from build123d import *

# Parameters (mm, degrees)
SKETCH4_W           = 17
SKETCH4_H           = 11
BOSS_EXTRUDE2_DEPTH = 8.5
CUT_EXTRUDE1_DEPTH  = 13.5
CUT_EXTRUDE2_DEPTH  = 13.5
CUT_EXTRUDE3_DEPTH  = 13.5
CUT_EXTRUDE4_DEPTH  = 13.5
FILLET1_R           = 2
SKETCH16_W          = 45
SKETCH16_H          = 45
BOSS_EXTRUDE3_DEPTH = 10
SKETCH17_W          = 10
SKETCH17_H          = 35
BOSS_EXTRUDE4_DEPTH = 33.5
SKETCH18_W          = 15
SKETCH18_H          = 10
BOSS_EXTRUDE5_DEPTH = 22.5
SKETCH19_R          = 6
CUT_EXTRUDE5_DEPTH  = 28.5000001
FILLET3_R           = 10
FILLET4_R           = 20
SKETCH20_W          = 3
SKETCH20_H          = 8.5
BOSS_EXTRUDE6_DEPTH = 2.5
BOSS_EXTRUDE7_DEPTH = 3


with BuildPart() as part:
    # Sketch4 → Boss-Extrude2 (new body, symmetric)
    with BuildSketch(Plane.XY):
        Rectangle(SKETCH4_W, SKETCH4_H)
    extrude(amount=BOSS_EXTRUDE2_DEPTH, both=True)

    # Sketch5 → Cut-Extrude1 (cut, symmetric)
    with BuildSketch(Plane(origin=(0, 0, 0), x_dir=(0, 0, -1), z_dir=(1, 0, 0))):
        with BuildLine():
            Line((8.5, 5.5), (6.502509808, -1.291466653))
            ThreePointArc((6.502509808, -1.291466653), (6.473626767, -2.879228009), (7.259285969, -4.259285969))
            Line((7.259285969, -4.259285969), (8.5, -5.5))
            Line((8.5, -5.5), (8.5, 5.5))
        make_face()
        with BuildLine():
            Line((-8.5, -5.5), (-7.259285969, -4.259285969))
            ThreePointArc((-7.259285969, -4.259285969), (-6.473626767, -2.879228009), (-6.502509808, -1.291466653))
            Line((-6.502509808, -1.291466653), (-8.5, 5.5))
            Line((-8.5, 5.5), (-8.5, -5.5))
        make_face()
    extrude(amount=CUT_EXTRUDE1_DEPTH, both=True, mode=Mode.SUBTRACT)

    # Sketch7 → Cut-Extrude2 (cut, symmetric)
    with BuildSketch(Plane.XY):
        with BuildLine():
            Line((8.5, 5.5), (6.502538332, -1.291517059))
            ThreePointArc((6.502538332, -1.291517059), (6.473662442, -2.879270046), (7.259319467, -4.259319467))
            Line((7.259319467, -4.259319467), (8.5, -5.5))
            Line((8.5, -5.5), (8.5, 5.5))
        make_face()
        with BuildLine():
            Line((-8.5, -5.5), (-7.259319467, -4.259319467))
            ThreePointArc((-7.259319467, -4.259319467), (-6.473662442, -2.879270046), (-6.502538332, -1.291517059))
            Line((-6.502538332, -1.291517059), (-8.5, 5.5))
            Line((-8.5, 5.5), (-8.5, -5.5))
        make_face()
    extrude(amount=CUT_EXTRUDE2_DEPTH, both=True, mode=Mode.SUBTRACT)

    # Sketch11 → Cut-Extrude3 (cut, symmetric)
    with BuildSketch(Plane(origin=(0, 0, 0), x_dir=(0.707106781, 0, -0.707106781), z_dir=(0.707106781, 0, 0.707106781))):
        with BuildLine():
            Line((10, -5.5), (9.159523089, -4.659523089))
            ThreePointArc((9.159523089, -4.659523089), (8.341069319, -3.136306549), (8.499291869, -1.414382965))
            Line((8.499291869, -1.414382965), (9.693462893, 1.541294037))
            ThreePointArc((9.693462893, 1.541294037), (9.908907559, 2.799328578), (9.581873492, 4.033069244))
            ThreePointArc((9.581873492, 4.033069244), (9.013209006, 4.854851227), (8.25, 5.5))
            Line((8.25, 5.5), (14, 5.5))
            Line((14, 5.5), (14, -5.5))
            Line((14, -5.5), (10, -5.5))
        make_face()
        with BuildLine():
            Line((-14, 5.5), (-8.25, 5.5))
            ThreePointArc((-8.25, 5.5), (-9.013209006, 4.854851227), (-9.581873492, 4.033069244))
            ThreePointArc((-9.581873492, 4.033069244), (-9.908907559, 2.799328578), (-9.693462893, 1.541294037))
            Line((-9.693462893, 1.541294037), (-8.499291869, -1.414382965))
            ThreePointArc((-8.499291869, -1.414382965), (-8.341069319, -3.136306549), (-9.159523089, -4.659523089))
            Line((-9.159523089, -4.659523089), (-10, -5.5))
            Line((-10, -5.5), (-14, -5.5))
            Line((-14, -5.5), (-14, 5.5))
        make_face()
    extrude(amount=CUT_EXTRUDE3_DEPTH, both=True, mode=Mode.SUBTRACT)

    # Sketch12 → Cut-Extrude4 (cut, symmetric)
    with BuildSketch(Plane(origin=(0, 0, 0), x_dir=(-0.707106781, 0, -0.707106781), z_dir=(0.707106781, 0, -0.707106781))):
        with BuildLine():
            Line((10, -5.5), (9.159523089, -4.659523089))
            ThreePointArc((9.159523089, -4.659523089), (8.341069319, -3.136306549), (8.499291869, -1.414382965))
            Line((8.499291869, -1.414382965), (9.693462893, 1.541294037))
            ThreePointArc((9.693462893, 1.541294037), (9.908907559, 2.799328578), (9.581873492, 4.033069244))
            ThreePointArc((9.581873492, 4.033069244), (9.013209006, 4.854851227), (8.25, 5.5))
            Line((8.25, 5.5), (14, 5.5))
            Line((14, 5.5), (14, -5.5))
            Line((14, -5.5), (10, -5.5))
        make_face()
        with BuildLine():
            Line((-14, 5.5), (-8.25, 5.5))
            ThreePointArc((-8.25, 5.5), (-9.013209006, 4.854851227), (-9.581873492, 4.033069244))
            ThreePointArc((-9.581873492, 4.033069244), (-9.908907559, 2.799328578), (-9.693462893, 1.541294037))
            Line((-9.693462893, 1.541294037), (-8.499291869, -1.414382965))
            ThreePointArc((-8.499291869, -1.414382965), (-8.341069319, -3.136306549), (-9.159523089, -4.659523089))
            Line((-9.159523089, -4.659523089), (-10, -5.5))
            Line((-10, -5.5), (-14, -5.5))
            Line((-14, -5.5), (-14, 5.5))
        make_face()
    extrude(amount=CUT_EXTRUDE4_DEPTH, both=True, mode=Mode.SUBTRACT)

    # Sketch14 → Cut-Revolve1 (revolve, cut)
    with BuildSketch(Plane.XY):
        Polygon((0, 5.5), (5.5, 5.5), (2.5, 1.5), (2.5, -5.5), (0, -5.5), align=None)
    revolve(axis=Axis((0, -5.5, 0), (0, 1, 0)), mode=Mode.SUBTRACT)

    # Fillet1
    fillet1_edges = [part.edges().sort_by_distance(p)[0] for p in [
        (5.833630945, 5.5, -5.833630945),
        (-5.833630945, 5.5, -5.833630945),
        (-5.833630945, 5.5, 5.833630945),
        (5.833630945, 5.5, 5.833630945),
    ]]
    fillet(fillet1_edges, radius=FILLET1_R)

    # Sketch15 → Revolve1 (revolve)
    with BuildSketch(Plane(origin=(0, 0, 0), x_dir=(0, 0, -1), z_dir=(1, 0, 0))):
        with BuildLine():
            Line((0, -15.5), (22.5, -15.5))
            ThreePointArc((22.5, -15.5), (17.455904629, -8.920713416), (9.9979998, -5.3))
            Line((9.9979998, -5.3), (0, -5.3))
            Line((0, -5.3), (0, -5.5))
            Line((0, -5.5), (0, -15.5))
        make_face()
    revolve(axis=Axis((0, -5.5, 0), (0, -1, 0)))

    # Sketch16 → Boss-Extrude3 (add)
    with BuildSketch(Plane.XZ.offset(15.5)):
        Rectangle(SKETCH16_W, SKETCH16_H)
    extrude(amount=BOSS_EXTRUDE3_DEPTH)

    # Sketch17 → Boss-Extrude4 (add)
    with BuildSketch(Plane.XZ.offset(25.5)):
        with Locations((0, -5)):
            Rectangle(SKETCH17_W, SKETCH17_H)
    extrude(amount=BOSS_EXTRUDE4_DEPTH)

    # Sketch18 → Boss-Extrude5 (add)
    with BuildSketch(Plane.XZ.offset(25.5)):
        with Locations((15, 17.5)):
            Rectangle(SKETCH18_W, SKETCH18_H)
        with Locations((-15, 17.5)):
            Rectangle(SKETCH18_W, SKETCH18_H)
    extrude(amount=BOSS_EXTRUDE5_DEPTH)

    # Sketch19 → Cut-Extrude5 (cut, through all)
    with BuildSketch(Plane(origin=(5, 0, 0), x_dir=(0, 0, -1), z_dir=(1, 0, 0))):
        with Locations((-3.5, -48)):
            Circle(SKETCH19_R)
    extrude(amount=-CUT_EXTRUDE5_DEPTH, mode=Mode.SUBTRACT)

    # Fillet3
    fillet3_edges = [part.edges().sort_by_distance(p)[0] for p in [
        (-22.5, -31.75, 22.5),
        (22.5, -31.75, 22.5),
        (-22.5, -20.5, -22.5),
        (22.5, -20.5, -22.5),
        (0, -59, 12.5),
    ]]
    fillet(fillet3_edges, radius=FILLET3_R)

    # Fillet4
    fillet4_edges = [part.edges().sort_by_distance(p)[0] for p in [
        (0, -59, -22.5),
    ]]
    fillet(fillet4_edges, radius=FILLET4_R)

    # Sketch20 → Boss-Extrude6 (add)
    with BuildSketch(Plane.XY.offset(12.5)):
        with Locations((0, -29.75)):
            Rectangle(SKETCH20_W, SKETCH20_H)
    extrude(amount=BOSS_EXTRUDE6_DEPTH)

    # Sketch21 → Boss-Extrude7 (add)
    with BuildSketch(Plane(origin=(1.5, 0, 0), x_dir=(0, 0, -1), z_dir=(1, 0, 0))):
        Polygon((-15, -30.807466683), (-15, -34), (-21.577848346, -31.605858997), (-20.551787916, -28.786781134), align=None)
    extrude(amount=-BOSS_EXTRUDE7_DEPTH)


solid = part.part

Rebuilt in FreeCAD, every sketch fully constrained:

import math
import FreeCAD as App
import Part
import Sketcher

V = App.Vector
Q = App.Units.Quantity


def edges_at(feature, points):
    """Names of the edges that pass closest to the given points."""
    edges = feature.Shape.Edges
    near = lambda p: min(range(len(edges)), key=lambda i: edges[i].distToShape(Part.Vertex(*p))[0])
    return sorted({f"Edge{near(p) + 1}" for p in points})

doc = App.newDocument("Part")
body = doc.addObject("PartDesign::Body", "Body")

sketch1 = body.newObject("Sketcher::SketchObject", "Sketch")
sketch1.AttachmentSupport = (doc.getObject("XY_Plane"), [""])
sketch1.MapMode = "FlatFace"
sketch1.addGeometry(Part.LineSegment(V(-8.5, 5.5, 0), V(-8.5, -5.5, 0)), False)
sketch1.addGeometry(Part.LineSegment(V(-8.5, -5.5, 0), V(8.5, -5.5, 0)), False)
sketch1.addGeometry(Part.LineSegment(V(8.5, -5.5, 0), V(8.5, 5.5, 0)), False)
sketch1.addGeometry(Part.LineSegment(V(8.5, 5.5, 0), V(-8.5, 5.5, 0)), False)
sketch1.addConstraint(Sketcher.Constraint("Coincident", 0, 2, 1, 1))
sketch1.addConstraint(Sketcher.Constraint("Coincident", 1, 2, 2, 1))
sketch1.addConstraint(Sketcher.Constraint("Coincident", 2, 2, 3, 1))
sketch1.addConstraint(Sketcher.Constraint("Coincident", 3, 2, 0, 1))
sketch1.addConstraint(Sketcher.Constraint("Vertical", 0))
sketch1.addConstraint(Sketcher.Constraint("Horizontal", 1))
sketch1.addConstraint(Sketcher.Constraint("Vertical", 2))
sketch1.addConstraint(Sketcher.Constraint("Horizontal", 3))
sketch1.addConstraint(Sketcher.Constraint("Symmetric", 0, 2, 2, 2, -1, 1))
sketch1.addConstraint(Sketcher.Constraint("DistanceX", 1, 1, 1, 2, 17.0))
sketch1.addConstraint(Sketcher.Constraint("DistanceY", 0, 2, 0, 1, 11.0))
pad1 = body.newObject("PartDesign::Pad", "Pad")
pad1.Profile = sketch1
pad1.Length = 17
pad1.Midplane = True

sketch2 = body.newObject("Sketcher::SketchObject", "Sketch001")
sketch2.AttachmentSupport = (doc.getObject("YZ_Plane"), [""])
sketch2.MapMode = "FlatFace"
sketch2.addGeometry(Part.LineSegment(V(5.5, -8.5, 0), V(-1.291467, -6.50251, 0)), False)
sketch2.addGeometry(Part.ArcOfCircle(Part.Circle(V(-2.137966, -9.380606, 0), V(0, 0, 1), 3), math.radians(73.61046), math.radians(135)), False)
sketch2.addGeometry(Part.LineSegment(V(-4.259286, -7.259286, 0), V(-5.5, -8.5, 0)), False)
sketch2.addGeometry(Part.LineSegment(V(-5.5, -8.5, 0), V(5.5, -8.5, 0)), False)
sketch2.addGeometry(Part.LineSegment(V(-5.5, 8.5, 0), V(-4.259286, 7.259286, 0)), False)
sketch2.addGeometry(Part.ArcOfCircle(Part.Circle(V(-2.137966, 9.380606, 0), V(0, 0, 1), 3), math.radians(-135), math.radians(-73.61046)), False)
sketch2.addGeometry(Part.LineSegment(V(-1.291467, 6.50251, 0), V(5.5, 8.5, 0)), False)
sketch2.addGeometry(Part.LineSegment(V(5.5, 8.5, 0), V(-5.5, 8.5, 0)), False)
sketch2.addConstraint(Sketcher.Constraint("Tangent", 0, 2, 1, 1))
sketch2.addConstraint(Sketcher.Constraint("Tangent", 1, 2, 2, 1))
sketch2.addConstraint(Sketcher.Constraint("Coincident", 2, 2, 3, 1))
sketch2.addConstraint(Sketcher.Constraint("Coincident", 3, 2, 0, 1))
sketch2.addConstraint(Sketcher.Constraint("Tangent", 4, 2, 5, 1))
sketch2.addConstraint(Sketcher.Constraint("Tangent", 5, 2, 6, 1))
sketch2.addConstraint(Sketcher.Constraint("Coincident", 6, 2, 7, 1))
sketch2.addConstraint(Sketcher.Constraint("Coincident", 7, 2, 4, 1))
sketch2.addConstraint(Sketcher.Constraint("Horizontal", 3))
sketch2.addConstraint(Sketcher.Constraint("Horizontal", 7))
sketch2.addConstraint(Sketcher.Constraint("Equal", 1, 5))
sketch2.addConstraint(Sketcher.Constraint("Symmetric", 2, 2, 6, 2, -1, 1))
sketch2.addConstraint(Sketcher.Constraint("Symmetric", 1, 3, 5, 3, -1))
sketch2.addConstraint(Sketcher.Constraint("Perpendicular", 2, 4))
sketch2.addConstraint(Sketcher.Constraint("Vertical", 1, 2, 4, 2))
sketch2.addConstraint(Sketcher.Constraint("Vertical", 0, 2, 5, 2))
sketch2.addConstraint(Sketcher.Constraint("Radius", 1, 3.0))
sketch2.addConstraint(Sketcher.Constraint("DistanceX", 3, 1, 3, 2, 11.0))
sketch2.addConstraint(Sketcher.Constraint("DistanceY", 3, 2, 6, 2, 17.0))
sketch2.addConstraint(Sketcher.Constraint("DistanceX", 1, 3, 0, 2, 0.846499))
pocket1 = body.newObject("PartDesign::Pocket", "Pocket")
pocket1.Profile = sketch2
pocket1.Length = 27
pocket1.Midplane = True

sketch3 = body.newObject("Sketcher::SketchObject", "Sketch002")
sketch3.AttachmentSupport = (doc.getObject("XY_Plane"), [""])
sketch3.MapMode = "FlatFace"
sketch3.addGeometry(Part.LineSegment(V(8.5, 5.5, 0), V(6.502538, -1.291517, 0)), False)
sketch3.addGeometry(Part.ArcOfCircle(Part.Circle(V(9.38064, -2.137999, 0), V(0, 0, 1), 3), math.radians(163.610796), math.radians(225)), False)
sketch3.addGeometry(Part.LineSegment(V(7.259319, -4.259319, 0), V(8.5, -5.5, 0)), False)
sketch3.addGeometry(Part.LineSegment(V(8.5, -5.5, 0), V(8.5, 5.5, 0)), False)
sketch3.addGeometry(Part.LineSegment(V(-8.5, -5.5, 0), V(-7.259319, -4.259319, 0)), False)
sketch3.addGeometry(Part.ArcOfCircle(Part.Circle(V(-9.38064, -2.137999, 0), V(0, 0, 1), 3), math.radians(-45), math.radians(16.389204)), False)
sketch3.addGeometry(Part.LineSegment(V(-6.502538, -1.291517, 0), V(-8.5, 5.5, 0)), False)
sketch3.addGeometry(Part.LineSegment(V(-8.5, 5.5, 0), V(-8.5, -5.5, 0)), False)
sketch3.addConstraint(Sketcher.Constraint("Tangent", 0, 2, 1, 1))
sketch3.addConstraint(Sketcher.Constraint("Tangent", 1, 2, 2, 1))
sketch3.addConstraint(Sketcher.Constraint("Coincident", 2, 2, 3, 1))
sketch3.addConstraint(Sketcher.Constraint("Coincident", 3, 2, 0, 1))
sketch3.addConstraint(Sketcher.Constraint("Tangent", 4, 2, 5, 1))
sketch3.addConstraint(Sketcher.Constraint("Tangent", 5, 2, 6, 1))
sketch3.addConstraint(Sketcher.Constraint("Coincident", 6, 2, 7, 1))
sketch3.addConstraint(Sketcher.Constraint("Coincident", 7, 2, 4, 1))
sketch3.addConstraint(Sketcher.Constraint("Vertical", 3))
sketch3.addConstraint(Sketcher.Constraint("Vertical", 7))
sketch3.addConstraint(Sketcher.Constraint("Equal", 1, 5))
sketch3.addConstraint(Sketcher.Constraint("Symmetric", 2, 2, 6, 2, -1, 1))
sketch3.addConstraint(Sketcher.Constraint("Symmetric", 1, 3, 5, 3, -2))
sketch3.addConstraint(Sketcher.Constraint("Perpendicular", 2, 4))
sketch3.addConstraint(Sketcher.Constraint("Horizontal", 1, 2, 4, 2))
sketch3.addConstraint(Sketcher.Constraint("Horizontal", 0, 2, 5, 2))
sketch3.addConstraint(Sketcher.Constraint("Radius", 1, 3.0))
sketch3.addConstraint(Sketcher.Constraint("DistanceY", 3, 1, 3, 2, 11.0))
sketch3.addConstraint(Sketcher.Constraint("DistanceX", 6, 2, 3, 2, 17.0))
sketch3.addConstraint(Sketcher.Constraint("DistanceY", 1, 3, -1, 1, 2.137999))
pocket2 = body.newObject("PartDesign::Pocket", "Pocket001")
pocket2.Profile = sketch3
pocket2.Length = 27
pocket2.Midplane = True

sketch4 = body.newObject("Sketcher::SketchObject", "Sketch003")
sketch4.Placement = App.Placement(V(0, 0, 0), App.Rotation(V(0.707106781, 0, -0.707106781), V(0, 0.999999999, 0), V(0.707106781, 0, 0.707106781), "ZXY"))
sketch4.addGeometry(Part.LineSegment(V(9.159523, -4.659523, 0), V(10, -5.5, 0)), False)
sketch4.addGeometry(Part.LineSegment(V(10, -5.5, 0), V(14, -5.5, 0)), False)
sketch4.addGeometry(Part.LineSegment(V(14, -5.5, 0), V(14, 5.5, 0)), False)
sketch4.addGeometry(Part.LineSegment(V(14, 5.5, 0), V(8.25, 5.5, 0)), False)
sketch4.addGeometry(Part.ArcOfCircle(Part.Circle(V(6.199286, 2.3, 0), V(0, 0, 1), 3.800714), math.radians(27.128338), math.radians(57.346293)), False)
sketch4.addGeometry(Part.ArcOfCircle(Part.Circle(V(6.911911, 2.665114, 0), V(0, 0, 1), 3), math.radians(-22), math.radians(27.128338)), False)
sketch4.addGeometry(Part.LineSegment(V(9.693463, 1.541294, 0), V(8.499292, -1.414383, 0)), False)
sketch4.addGeometry(Part.ArcOfCircle(Part.Circle(V(11.280843, -2.538203, 0), V(0, 0, 1), 3), math.radians(158), math.radians(225)), False)
sketch4.addGeometry(Part.LineSegment(V(-8.25, 5.5, 0), V(-14, 5.5, 0)), False)
sketch4.addGeometry(Part.LineSegment(V(-14, 5.5, 0), V(-14, -5.5, 0)), False)
sketch4.addGeometry(Part.LineSegment(V(-14, -5.5, 0), V(-10, -5.5, 0)), False)
sketch4.addGeometry(Part.LineSegment(V(-10, -5.5, 0), V(-9.159523, -4.659523, 0)), False)
sketch4.addGeometry(Part.ArcOfCircle(Part.Circle(V(-11.280843, -2.538203, 0), V(0, 0, 1), 3), math.radians(-45), math.radians(22)), False)
sketch4.addGeometry(Part.LineSegment(V(-8.499292, -1.414383, 0), V(-9.693463, 1.541294, 0)), False)
sketch4.addGeometry(Part.ArcOfCircle(Part.Circle(V(-6.911911, 2.665114, 0), V(0, 0, 1), 3), math.radians(152.871662), math.radians(202)), False)
sketch4.addGeometry(Part.ArcOfCircle(Part.Circle(V(-6.199286, 2.3, 0), V(0, 0, 1), 3.800714), math.radians(122.653707), math.radians(152.871662)), False)
sketch4.addConstraint(Sketcher.Constraint("Coincident", 0, 2, 1, 1))
sketch4.addConstraint(Sketcher.Constraint("Coincident", 1, 2, 2, 1))
sketch4.addConstraint(Sketcher.Constraint("Coincident", 2, 2, 3, 1))
sketch4.addConstraint(Sketcher.Constraint("Coincident", 3, 2, 4, 2))
sketch4.addConstraint(Sketcher.Constraint("Tangent", 4, 1, 5, 2))
sketch4.addConstraint(Sketcher.Constraint("Tangent", 5, 1, 6, 1))
sketch4.addConstraint(Sketcher.Constraint("Tangent", 6, 2, 7, 1))
sketch4.addConstraint(Sketcher.Constraint("Tangent", 7, 2, 0, 1))
sketch4.addConstraint(Sketcher.Constraint("Coincident", 8, 2, 9, 1))
sketch4.addConstraint(Sketcher.Constraint("Coincident", 9, 2, 10, 1))
sketch4.addConstraint(Sketcher.Constraint("Coincident", 10, 2, 11, 1))
sketch4.addConstraint(Sketcher.Constraint("Tangent", 11, 2, 12, 1))
sketch4.addConstraint(Sketcher.Constraint("Tangent", 12, 2, 13, 1))
sketch4.addConstraint(Sketcher.Constraint("Tangent", 13, 2, 14, 2))
sketch4.addConstraint(Sketcher.Constraint("Tangent", 14, 1, 15, 2))
sketch4.addConstraint(Sketcher.Constraint("Coincident", 15, 1, 8, 1))
sketch4.addConstraint(Sketcher.Constraint("Horizontal", 1))
sketch4.addConstraint(Sketcher.Constraint("Vertical", 2))
sketch4.addConstraint(Sketcher.Constraint("Horizontal", 3))
sketch4.addConstraint(Sketcher.Constraint("Horizontal", 8))
sketch4.addConstraint(Sketcher.Constraint("Vertical", 9))
sketch4.addConstraint(Sketcher.Constraint("Horizontal", 10))
sketch4.addConstraint(Sketcher.Constraint("Equal", 5, 7))
sketch4.addConstraint(Sketcher.Constraint("Equal", 7, 12))
sketch4.addConstraint(Sketcher.Constraint("Equal", 12, 14))
sketch4.addConstraint(Sketcher.Constraint("Equal", 4, 15))
sketch4.addConstraint(Sketcher.Constraint("Symmetric", 1, 2, 8, 2, -1, 1))
sketch4.addConstraint(Sketcher.Constraint("Symmetric", 7, 3, 12, 3, -2))
sketch4.addConstraint(Sketcher.Constraint("Symmetric", 5, 3, 14, 3, -2))
sketch4.addConstraint(Sketcher.Constraint("Symmetric", 0, 2, 10, 2, -2))
sketch4.addConstraint(Sketcher.Constraint("Symmetric", 3, 2, 15, 1, -2))
sketch4.addConstraint(Sketcher.Constraint("Perpendicular", 0, 11))
sketch4.addConstraint(Sketcher.Constraint("Radius", 5, 3.0))
sketch4.addConstraint(Sketcher.Constraint("DistanceX", 1, 1, 1, 2, 4.0))
sketch4.addConstraint(Sketcher.Constraint("DistanceY", 2, 1, 2, 2, 11.0))
sketch4.addConstraint(Sketcher.Constraint("Angle", 6, Q("-112 deg")))
sketch4.addConstraint(Sketcher.Constraint("DistanceX", -1, 1, 0, 2, 10.0))
sketch4.addConstraint(Sketcher.Constraint("DistanceX", 3, 2, 3, 1, 5.75))
sketch4.addConstraint(Sketcher.Constraint("DistanceY", -1, 1, 4, 3, 2.3))
sketch4.addConstraint(Sketcher.Constraint("Radius", 4, 3.800714))
sketch4.addConstraint(Sketcher.Constraint("Distance", 6, 3.1878))
pocket3 = body.newObject("PartDesign::Pocket", "Pocket002")
pocket3.Profile = sketch4
pocket3.Length = 27
pocket3.Midplane = True

sketch5 = body.newObject("Sketcher::SketchObject", "Sketch004")
sketch5.Placement = App.Placement(V(0, 0, 0), App.Rotation(V(-0.707106781, 0, -0.707106781), V(0, 0.999999999, 0), V(0.707106781, 0, -0.707106781), "ZXY"))
sketch5.addGeometry(Part.LineSegment(V(9.159523, -4.659523, 0), V(10, -5.5, 0)), False)
sketch5.addGeometry(Part.LineSegment(V(10, -5.5, 0), V(14, -5.5, 0)), False)
sketch5.addGeometry(Part.LineSegment(V(14, -5.5, 0), V(14, 5.5, 0)), False)
sketch5.addGeometry(Part.LineSegment(V(14, 5.5, 0), V(8.25, 5.5, 0)), False)
sketch5.addGeometry(Part.ArcOfCircle(Part.Circle(V(6.199286, 2.3, 0), V(0, 0, 1), 3.800714), math.radians(27.128338), math.radians(57.346293)), False)
sketch5.addGeometry(Part.ArcOfCircle(Part.Circle(V(6.911911, 2.665114, 0), V(0, 0, 1), 3), math.radians(-22), math.radians(27.128338)), False)
sketch5.addGeometry(Part.LineSegment(V(9.693463, 1.541294, 0), V(8.499292, -1.414383, 0)), False)
sketch5.addGeometry(Part.ArcOfCircle(Part.Circle(V(11.280843, -2.538203, 0), V(0, 0, 1), 3), math.radians(158), math.radians(225)), False)
sketch5.addGeometry(Part.LineSegment(V(-8.25, 5.5, 0), V(-14, 5.5, 0)), False)
sketch5.addGeometry(Part.LineSegment(V(-14, 5.5, 0), V(-14, -5.5, 0)), False)
sketch5.addGeometry(Part.LineSegment(V(-14, -5.5, 0), V(-10, -5.5, 0)), False)
sketch5.addGeometry(Part.LineSegment(V(-10, -5.5, 0), V(-9.159523, -4.659523, 0)), False)
sketch5.addGeometry(Part.ArcOfCircle(Part.Circle(V(-11.280843, -2.538203, 0), V(0, 0, 1), 3), math.radians(-45), math.radians(22)), False)
sketch5.addGeometry(Part.LineSegment(V(-8.499292, -1.414383, 0), V(-9.693463, 1.541294, 0)), False)
sketch5.addGeometry(Part.ArcOfCircle(Part.Circle(V(-6.911911, 2.665114, 0), V(0, 0, 1), 3), math.radians(152.871662), math.radians(202)), False)
sketch5.addGeometry(Part.ArcOfCircle(Part.Circle(V(-6.199286, 2.3, 0), V(0, 0, 1), 3.800714), math.radians(122.653707), math.radians(152.871662)), False)
sketch5.addConstraint(Sketcher.Constraint("Coincident", 0, 2, 1, 1))
sketch5.addConstraint(Sketcher.Constraint("Coincident", 1, 2, 2, 1))
sketch5.addConstraint(Sketcher.Constraint("Coincident", 2, 2, 3, 1))
sketch5.addConstraint(Sketcher.Constraint("Coincident", 3, 2, 4, 2))
sketch5.addConstraint(Sketcher.Constraint("Tangent", 4, 1, 5, 2))
sketch5.addConstraint(Sketcher.Constraint("Tangent", 5, 1, 6, 1))
sketch5.addConstraint(Sketcher.Constraint("Tangent", 6, 2, 7, 1))
sketch5.addConstraint(Sketcher.Constraint("Tangent", 7, 2, 0, 1))
sketch5.addConstraint(Sketcher.Constraint("Coincident", 8, 2, 9, 1))
sketch5.addConstraint(Sketcher.Constraint("Coincident", 9, 2, 10, 1))
sketch5.addConstraint(Sketcher.Constraint("Coincident", 10, 2, 11, 1))
sketch5.addConstraint(Sketcher.Constraint("Tangent", 11, 2, 12, 1))
sketch5.addConstraint(Sketcher.Constraint("Tangent", 12, 2, 13, 1))
sketch5.addConstraint(Sketcher.Constraint("Tangent", 13, 2, 14, 2))
sketch5.addConstraint(Sketcher.Constraint("Tangent", 14, 1, 15, 2))
sketch5.addConstraint(Sketcher.Constraint("Coincident", 15, 1, 8, 1))
sketch5.addConstraint(Sketcher.Constraint("Horizontal", 1))
sketch5.addConstraint(Sketcher.Constraint("Vertical", 2))
sketch5.addConstraint(Sketcher.Constraint("Horizontal", 3))
sketch5.addConstraint(Sketcher.Constraint("Horizontal", 8))
sketch5.addConstraint(Sketcher.Constraint("Vertical", 9))
sketch5.addConstraint(Sketcher.Constraint("Horizontal", 10))
sketch5.addConstraint(Sketcher.Constraint("Equal", 5, 7))
sketch5.addConstraint(Sketcher.Constraint("Equal", 7, 12))
sketch5.addConstraint(Sketcher.Constraint("Equal", 12, 14))
sketch5.addConstraint(Sketcher.Constraint("Equal", 4, 15))
sketch5.addConstraint(Sketcher.Constraint("Symmetric", 1, 2, 8, 2, -1, 1))
sketch5.addConstraint(Sketcher.Constraint("Symmetric", 7, 3, 12, 3, -2))
sketch5.addConstraint(Sketcher.Constraint("Symmetric", 5, 3, 14, 3, -2))
sketch5.addConstraint(Sketcher.Constraint("Symmetric", 0, 2, 10, 2, -2))
sketch5.addConstraint(Sketcher.Constraint("Symmetric", 3, 2, 15, 1, -2))
sketch5.addConstraint(Sketcher.Constraint("Perpendicular", 0, 11))
sketch5.addConstraint(Sketcher.Constraint("Radius", 5, 3.0))
sketch5.addConstraint(Sketcher.Constraint("DistanceX", 1, 1, 1, 2, 4.0))
sketch5.addConstraint(Sketcher.Constraint("DistanceY", 2, 1, 2, 2, 11.0))
sketch5.addConstraint(Sketcher.Constraint("Angle", 6, Q("-112 deg")))
sketch5.addConstraint(Sketcher.Constraint("DistanceX", -1, 1, 0, 2, 10.0))
sketch5.addConstraint(Sketcher.Constraint("DistanceX", 3, 2, 3, 1, 5.75))
sketch5.addConstraint(Sketcher.Constraint("DistanceY", -1, 1, 4, 3, 2.3))
sketch5.addConstraint(Sketcher.Constraint("Radius", 4, 3.800714))
sketch5.addConstraint(Sketcher.Constraint("Distance", 6, 3.1878))
pocket4 = body.newObject("PartDesign::Pocket", "Pocket003")
pocket4.Profile = sketch5
pocket4.Length = 27
pocket4.Midplane = True

sketch6 = body.newObject("Sketcher::SketchObject", "Sketch005")
sketch6.AttachmentSupport = (doc.getObject("XY_Plane"), [""])
sketch6.MapMode = "FlatFace"
sketch6.addGeometry(Part.LineSegment(V(5.5, 5.5, 0), V(0, 5.5, 0)), False)
sketch6.addGeometry(Part.LineSegment(V(0, 5.5, 0), V(0, -5.5, 0)), False)
sketch6.addGeometry(Part.LineSegment(V(0, -5.5, 0), V(2.5, -5.5, 0)), False)
sketch6.addGeometry(Part.LineSegment(V(2.5, -5.5, 0), V(2.5, 1.5, 0)), False)
sketch6.addGeometry(Part.LineSegment(V(2.5, 1.5, 0), V(5.5, 5.5, 0)), False)
sketch6.addConstraint(Sketcher.Constraint("Coincident", 0, 2, 1, 1))
sketch6.addConstraint(Sketcher.Constraint("Coincident", 1, 2, 2, 1))
sketch6.addConstraint(Sketcher.Constraint("Coincident", 2, 2, 3, 1))
sketch6.addConstraint(Sketcher.Constraint("Coincident", 3, 2, 4, 1))
sketch6.addConstraint(Sketcher.Constraint("Coincident", 4, 2, 0, 1))
sketch6.addConstraint(Sketcher.Constraint("Horizontal", 0))
sketch6.addConstraint(Sketcher.Constraint("Vertical", 1))
sketch6.addConstraint(Sketcher.Constraint("Horizontal", 2))
sketch6.addConstraint(Sketcher.Constraint("Vertical", 3))
sketch6.addConstraint(Sketcher.Constraint("Symmetric", 0, 2, 1, 2, -1, 1))
sketch6.addConstraint(Sketcher.Constraint("DistanceY", 1, 2, 1, 1, 11.0))
sketch6.addConstraint(Sketcher.Constraint("DistanceY", 3, 1, 3, 2, 7.0))
sketch6.addConstraint(Sketcher.Constraint("Distance", 4, 5.0))
sketch6.addConstraint(Sketcher.Constraint("DistanceX", 0, 2, 0, 1, 5.5))
groove = body.newObject("PartDesign::Groove", "Groove")
groove.Profile = sketch6
groove.ReferenceAxis = (sketch6, ["V_Axis"])
groove.Angle = 360
doc.recompute()

fillet = body.newObject("PartDesign::Fillet", "Fillet")
fillet.Base = (groove, edges_at(groove, [
    (5.834, 5.5, -5.834),
    (-5.834, 5.5, -5.834),
    (-5.834, 5.5, 5.834),
    (5.834, 5.5, 5.834),
]))
fillet.Radius = 2

sketch7 = body.newObject("Sketcher::SketchObject", "Sketch006")
sketch7.AttachmentSupport = (doc.getObject("YZ_Plane"), [""])
sketch7.MapMode = "FlatFace"
sketch7.addGeometry(Part.LineSegment(V(-15.5, 0, 0), V(-15.5, -22.5, 0)), False)
sketch7.addGeometry(Part.ArcOfCircle(Part.Circle(V(-22.867737, -6.076954, 0), V(0, 0, 1), 18), math.radians(-65.837953), math.radians(-12.581956)), False)
sketch7.addGeometry(Part.LineSegment(V(-5.3, -9.998, 0), V(-5.3, 0, 0)), False)
sketch7.addGeometry(Part.LineSegment(V(-5.3, 0, 0), V(-15.5, 0, 0)), False)
sketch7.addConstraint(Sketcher.Constraint("Coincident", 0, 2, 1, 1))
sketch7.addConstraint(Sketcher.Constraint("Coincident", 1, 2, 2, 1))
sketch7.addConstraint(Sketcher.Constraint("Coincident", 2, 2, 3, 1))
sketch7.addConstraint(Sketcher.Constraint("Coincident", 3, 2, 0, 1))
sketch7.addConstraint(Sketcher.Constraint("Vertical", 0))
sketch7.addConstraint(Sketcher.Constraint("Vertical", 2))
sketch7.addConstraint(Sketcher.Constraint("Horizontal", 3))
sketch7.addConstraint(Sketcher.Constraint("PointOnObject", 2, 2, -1))
sketch7.addConstraint(Sketcher.Constraint("Radius", 1, 18.0))
sketch7.addConstraint(Sketcher.Constraint("DistanceX", 3, 2, 3, 1, 10.2))
sketch7.addConstraint(Sketcher.Constraint("DistanceY", 0, 2, 0, 1, 22.5))
sketch7.addConstraint(Sketcher.Constraint("DistanceX", 0, 2, -1, 1, 15.5))
sketch7.addConstraint(Sketcher.Constraint("DistanceY", 2, 1, 2, 2, 9.998))
revolution = body.newObject("PartDesign::Revolution", "Revolution")
revolution.Profile = sketch7
revolution.ReferenceAxis = (sketch7, ["H_Axis"])
revolution.Angle = 360

sketch8 = body.newObject("Sketcher::SketchObject", "Sketch007")
sketch8.AttachmentSupport = (doc.getObject("XZ_Plane"), [""])
sketch8.MapMode = "FlatFace"
sketch8.AttachmentOffset = App.Placement(V(0, 0, 15.5), App.Rotation())
sketch8.addGeometry(Part.LineSegment(V(-22.5, 22.5, 0), V(-22.5, -22.5, 0)), False)
sketch8.addGeometry(Part.LineSegment(V(-22.5, -22.5, 0), V(22.5, -22.5, 0)), False)
sketch8.addGeometry(Part.LineSegment(V(22.5, -22.5, 0), V(22.5, 22.5, 0)), False)
sketch8.addGeometry(Part.LineSegment(V(22.5, 22.5, 0), V(-22.5, 22.5, 0)), False)
sketch8.addConstraint(Sketcher.Constraint("Coincident", 0, 2, 1, 1))
sketch8.addConstraint(Sketcher.Constraint("Coincident", 1, 2, 2, 1))
sketch8.addConstraint(Sketcher.Constraint("Coincident", 2, 2, 3, 1))
sketch8.addConstraint(Sketcher.Constraint("Coincident", 3, 2, 0, 1))
sketch8.addConstraint(Sketcher.Constraint("Vertical", 0))
sketch8.addConstraint(Sketcher.Constraint("Horizontal", 1))
sketch8.addConstraint(Sketcher.Constraint("Vertical", 2))
sketch8.addConstraint(Sketcher.Constraint("Horizontal", 3))
sketch8.addConstraint(Sketcher.Constraint("Symmetric", 0, 2, 2, 2, -1, 1))
sketch8.addConstraint(Sketcher.Constraint("Equal", 3, 0))
sketch8.addConstraint(Sketcher.Constraint("DistanceX", 1, 1, 1, 2, 45.0))
pad2 = body.newObject("PartDesign::Pad", "Pad001")
pad2.Profile = sketch8
pad2.Length = 10

sketch9 = body.newObject("Sketcher::SketchObject", "Sketch008")
sketch9.AttachmentSupport = (doc.getObject("XZ_Plane"), [""])
sketch9.MapMode = "FlatFace"
sketch9.AttachmentOffset = App.Placement(V(0, 0, 25.5), App.Rotation())
sketch9.addGeometry(Part.LineSegment(V(-5, 12.5, 0), V(-5, -22.5, 0)), False)
sketch9.addGeometry(Part.LineSegment(V(-5, -22.5, 0), V(5, -22.5, 0)), False)
sketch9.addGeometry(Part.LineSegment(V(5, -22.5, 0), V(5, 12.5, 0)), False)
sketch9.addGeometry(Part.LineSegment(V(5, 12.5, 0), V(-5, 12.5, 0)), False)
sketch9.addConstraint(Sketcher.Constraint("Coincident", 0, 2, 1, 1))
sketch9.addConstraint(Sketcher.Constraint("Coincident", 1, 2, 2, 1))
sketch9.addConstraint(Sketcher.Constraint("Coincident", 2, 2, 3, 1))
sketch9.addConstraint(Sketcher.Constraint("Coincident", 3, 2, 0, 1))
sketch9.addConstraint(Sketcher.Constraint("Vertical", 0))
sketch9.addConstraint(Sketcher.Constraint("Horizontal", 1))
sketch9.addConstraint(Sketcher.Constraint("Vertical", 2))
sketch9.addConstraint(Sketcher.Constraint("Horizontal", 3))
sketch9.addConstraint(Sketcher.Constraint("DistanceX", 1, 1, 1, 2, 10.0))
sketch9.addConstraint(Sketcher.Constraint("DistanceY", 0, 2, 0, 1, 35.0))
sketch9.addConstraint(Sketcher.Constraint("DistanceX", 0, 2, -1, 1, 5.0))
sketch9.addConstraint(Sketcher.Constraint("DistanceY", 0, 2, -1, 1, 22.5))
pad3 = body.newObject("PartDesign::Pad", "Pad002")
pad3.Profile = sketch9
pad3.Length = 33.5

sketch10 = body.newObject("Sketcher::SketchObject", "Sketch009")
sketch10.AttachmentSupport = (doc.getObject("XZ_Plane"), [""])
sketch10.MapMode = "FlatFace"
sketch10.AttachmentOffset = App.Placement(V(0, 0, 25.5), App.Rotation())
sketch10.addGeometry(Part.LineSegment(V(7.5, 22.5, 0), V(7.5, 12.5, 0)), False)
sketch10.addGeometry(Part.LineSegment(V(7.5, 12.5, 0), V(22.5, 12.5, 0)), False)
sketch10.addGeometry(Part.LineSegment(V(22.5, 12.5, 0), V(22.5, 22.5, 0)), False)
sketch10.addGeometry(Part.LineSegment(V(22.5, 22.5, 0), V(7.5, 22.5, 0)), False)
sketch10.addGeometry(Part.LineSegment(V(-22.5, 22.5, 0), V(-22.5, 12.5, 0)), False)
sketch10.addGeometry(Part.LineSegment(V(-22.5, 12.5, 0), V(-7.5, 12.5, 0)), False)
sketch10.addGeometry(Part.LineSegment(V(-7.5, 12.5, 0), V(-7.5, 22.5, 0)), False)
sketch10.addGeometry(Part.LineSegment(V(-7.5, 22.5, 0), V(-22.5, 22.5, 0)), False)
sketch10.addConstraint(Sketcher.Constraint("Coincident", 0, 2, 1, 1))
sketch10.addConstraint(Sketcher.Constraint("Coincident", 1, 2, 2, 1))
sketch10.addConstraint(Sketcher.Constraint("Coincident", 2, 2, 3, 1))
sketch10.addConstraint(Sketcher.Constraint("Coincident", 3, 2, 0, 1))
sketch10.addConstraint(Sketcher.Constraint("Coincident", 4, 2, 5, 1))
sketch10.addConstraint(Sketcher.Constraint("Coincident", 5, 2, 6, 1))
sketch10.addConstraint(Sketcher.Constraint("Coincident", 6, 2, 7, 1))
sketch10.addConstraint(Sketcher.Constraint("Coincident", 7, 2, 4, 1))
sketch10.addConstraint(Sketcher.Constraint("Vertical", 0))
sketch10.addConstraint(Sketcher.Constraint("Horizontal", 1))
sketch10.addConstraint(Sketcher.Constraint("Vertical", 2))
sketch10.addConstraint(Sketcher.Constraint("Horizontal", 3))
sketch10.addConstraint(Sketcher.Constraint("Vertical", 4))
sketch10.addConstraint(Sketcher.Constraint("Horizontal", 5))
sketch10.addConstraint(Sketcher.Constraint("Vertical", 6))
sketch10.addConstraint(Sketcher.Constraint("Horizontal", 7))
sketch10.addConstraint(Sketcher.Constraint("Symmetric", 1, 2, 4, 2, -2))
sketch10.addConstraint(Sketcher.Constraint("Symmetric", 3, 2, 6, 2, -2))
sketch10.addConstraint(Sketcher.Constraint("DistanceX", 1, 1, 1, 2, 15.0))
sketch10.addConstraint(Sketcher.Constraint("DistanceY", 0, 2, 0, 1, 10.0))
sketch10.addConstraint(Sketcher.Constraint("DistanceX", 4, 2, 0, 2, 30.0))
sketch10.addConstraint(Sketcher.Constraint("DistanceY", -1, 1, 0, 2, 12.5))
pad4 = body.newObject("PartDesign::Pad", "Pad003")
pad4.Profile = sketch10
pad4.Length = 22.5

sketch11 = body.newObject("Sketcher::SketchObject", "Sketch010")
sketch11.AttachmentSupport = (doc.getObject("YZ_Plane"), [""])
sketch11.MapMode = "FlatFace"
sketch11.AttachmentOffset = App.Placement(V(0, 0, 5), App.Rotation())
sketch11.addGeometry(Part.Circle(V(-48, 3.5, 0), V(0, 0, 1), 6), False)
sketch11.addConstraint(Sketcher.Constraint("Diameter", 0, 12.0))
sketch11.addConstraint(Sketcher.Constraint("DistanceX", 0, 3, -1, 1, 48.0))
sketch11.addConstraint(Sketcher.Constraint("DistanceY", -1, 1, 0, 3, 3.5))
pocket5 = body.newObject("PartDesign::Pocket", "Pocket004")
pocket5.Profile = sketch11
pocket5.Type = "ThroughAll"
doc.recompute()

fillet2 = body.newObject("PartDesign::Fillet", "Fillet001")
fillet2.Base = (pocket5, edges_at(pocket5, [
    (-22.5, -31.75, 22.5),
    (22.5, -31.75, 22.5),
    (-22.5, -20.5, -22.5),
    (22.5, -20.5, -22.5),
    (0, -59, 12.5),
]))
fillet2.Radius = 10
doc.recompute()

fillet3 = body.newObject("PartDesign::Fillet", "Fillet002")
fillet3.Base = (fillet2, edges_at(fillet2, [(0, -59, -22.5)]))
fillet3.Radius = 20

sketch12 = body.newObject("Sketcher::SketchObject", "Sketch011")
sketch12.AttachmentSupport = (doc.getObject("XY_Plane"), [""])
sketch12.MapMode = "FlatFace"
sketch12.AttachmentOffset = App.Placement(V(0, 0, 12.5), App.Rotation())
sketch12.addGeometry(Part.LineSegment(V(-1.5, -25.5, 0), V(-1.5, -34, 0)), False)
sketch12.addGeometry(Part.LineSegment(V(-1.5, -34, 0), V(1.5, -34, 0)), False)
sketch12.addGeometry(Part.LineSegment(V(1.5, -34, 0), V(1.5, -25.5, 0)), False)
sketch12.addGeometry(Part.LineSegment(V(1.5, -25.5, 0), V(-1.5, -25.5, 0)), False)
sketch12.addConstraint(Sketcher.Constraint("Coincident", 0, 2, 1, 1))
sketch12.addConstraint(Sketcher.Constraint("Coincident", 1, 2, 2, 1))
sketch12.addConstraint(Sketcher.Constraint("Coincident", 2, 2, 3, 1))
sketch12.addConstraint(Sketcher.Constraint("Coincident", 3, 2, 0, 1))
sketch12.addConstraint(Sketcher.Constraint("Vertical", 0))
sketch12.addConstraint(Sketcher.Constraint("Horizontal", 1))
sketch12.addConstraint(Sketcher.Constraint("Vertical", 2))
sketch12.addConstraint(Sketcher.Constraint("Horizontal", 3))
sketch12.addConstraint(Sketcher.Constraint("DistanceX", 1, 1, 1, 2, 3.0))
sketch12.addConstraint(Sketcher.Constraint("DistanceY", 0, 2, 0, 1, 8.5))
sketch12.addConstraint(Sketcher.Constraint("DistanceY", 0, 2, -1, 1, 34.0))
sketch12.addConstraint(Sketcher.Constraint("DistanceX", 0, 2, -1, 1, 1.5))
pad5 = body.newObject("PartDesign::Pad", "Pad004")
pad5.Profile = sketch12
pad5.Length = 2.5

sketch13 = body.newObject("Sketcher::SketchObject", "Sketch012")
sketch13.AttachmentSupport = (doc.getObject("YZ_Plane"), [""])
sketch13.MapMode = "FlatFace"
sketch13.AttachmentOffset = App.Placement(V(0, 0, 1.5), App.Rotation())
sketch13.addGeometry(Part.LineSegment(V(-34, 15, 0), V(-30.807467, 15, 0)), False)
sketch13.addGeometry(Part.LineSegment(V(-30.807467, 15, 0), V(-28.786781, 20.551788, 0)), False)
sketch13.addGeometry(Part.LineSegment(V(-28.786781, 20.551788, 0), V(-31.605859, 21.577848, 0)), False)
sketch13.addGeometry(Part.LineSegment(V(-31.605859, 21.577848, 0), V(-34, 15, 0)), False)
sketch13.addConstraint(Sketcher.Constraint("Coincident", 0, 2, 1, 1))
sketch13.addConstraint(Sketcher.Constraint("Coincident", 1, 2, 2, 1))
sketch13.addConstraint(Sketcher.Constraint("Coincident", 2, 2, 3, 1))
sketch13.addConstraint(Sketcher.Constraint("Coincident", 3, 2, 0, 1))
sketch13.addConstraint(Sketcher.Constraint("Horizontal", 0))
sketch13.addConstraint(Sketcher.Constraint("Perpendicular", 1, 2))
sketch13.addConstraint(Sketcher.Constraint("Perpendicular", 2, 3))
sketch13.addConstraint(Sketcher.Constraint("Angle", 1, Q("70 deg")))
sketch13.addConstraint(Sketcher.Constraint("Distance", 2, 3.0))
sketch13.addConstraint(Sketcher.Constraint("Distance", 3, 7.0))
sketch13.addConstraint(Sketcher.Constraint("DistanceY", -1, 1, 0, 2, 15.0))
sketch13.addConstraint(Sketcher.Constraint("DistanceX", 3, 2, -1, 1, 34.0))
pad6 = body.newObject("PartDesign::Pad", "Pad005")
pad6.Profile = sketch13
pad6.Length = 3
pad6.Reversed = True

doc.recompute()
